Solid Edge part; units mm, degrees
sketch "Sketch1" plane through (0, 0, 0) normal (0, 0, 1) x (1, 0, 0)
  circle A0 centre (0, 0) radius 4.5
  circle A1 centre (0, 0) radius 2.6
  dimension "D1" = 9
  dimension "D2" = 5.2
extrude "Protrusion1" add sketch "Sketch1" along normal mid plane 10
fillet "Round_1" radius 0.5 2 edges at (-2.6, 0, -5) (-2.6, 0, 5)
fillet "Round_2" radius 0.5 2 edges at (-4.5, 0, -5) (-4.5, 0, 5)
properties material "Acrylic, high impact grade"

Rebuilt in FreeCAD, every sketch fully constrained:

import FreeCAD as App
import Part
import Sketcher
from FreeCAD import Vector
Q = App.Units.Quantity


def edges_at(feature, points):
    """Names of the edges that pass closest to the given points."""
    edges = feature.Shape.Edges
    near = lambda p: min(range(len(edges)), key=lambda i: edges[i].distToShape(Part.Vertex(*p))[0])
    return sorted({f"Edge{near(p) + 1}" for p in points})

doc = App.newDocument("Part")
body = doc.addObject("PartDesign::Body", "Body")

# Sketch on XY plane
sketch1 = body.newObject("Sketcher::SketchObject", "Sketch")
sketch1.AttachmentSupport = (doc.getObject("XY_Plane"), [""])
sketch1.MapMode = "FlatFace"
sketch1.addGeometry(Part.Circle(Vector(0, 0, 0), Vector(0, 0, 1), 4.5), False)
sketch1.addGeometry(Part.Circle(Vector(0, 0, 0), Vector(0, 0, 1), 2.6), False)
sketch1.addConstraint(Sketcher.Constraint("Coincident", 0, 3, -1, 1))
sketch1.addConstraint(Sketcher.Constraint("Coincident", 1, 3, -1, 1))
sketch1.addConstraint(Sketcher.Constraint("Diameter", 0, Q("9 mm")))
sketch1.addConstraint(Sketcher.Constraint("Diameter", 1, Q("5.2 mm")))
pad1 = body.newObject("PartDesign::Pad", "Pad")
pad1.Profile = sketch1
pad1.Length = 10
pad1.Midplane = True
doc.recompute()

fillet = body.newObject("PartDesign::Fillet", "Fillet")
fillet.Base = (pad1, edges_at(pad1, [(-2.6, 0, -5), (-2.6, 0, 5)]))
fillet.Radius = 0.5
doc.recompute()

fillet2 = body.newObject("PartDesign::Fillet", "Fillet001")
fillet2.Base = (fillet, edges_at(fillet, [(-4.5, 0, -5), (-4.5, 0, 5)]))
fillet2.Radius = 0.5

doc.recompute()
